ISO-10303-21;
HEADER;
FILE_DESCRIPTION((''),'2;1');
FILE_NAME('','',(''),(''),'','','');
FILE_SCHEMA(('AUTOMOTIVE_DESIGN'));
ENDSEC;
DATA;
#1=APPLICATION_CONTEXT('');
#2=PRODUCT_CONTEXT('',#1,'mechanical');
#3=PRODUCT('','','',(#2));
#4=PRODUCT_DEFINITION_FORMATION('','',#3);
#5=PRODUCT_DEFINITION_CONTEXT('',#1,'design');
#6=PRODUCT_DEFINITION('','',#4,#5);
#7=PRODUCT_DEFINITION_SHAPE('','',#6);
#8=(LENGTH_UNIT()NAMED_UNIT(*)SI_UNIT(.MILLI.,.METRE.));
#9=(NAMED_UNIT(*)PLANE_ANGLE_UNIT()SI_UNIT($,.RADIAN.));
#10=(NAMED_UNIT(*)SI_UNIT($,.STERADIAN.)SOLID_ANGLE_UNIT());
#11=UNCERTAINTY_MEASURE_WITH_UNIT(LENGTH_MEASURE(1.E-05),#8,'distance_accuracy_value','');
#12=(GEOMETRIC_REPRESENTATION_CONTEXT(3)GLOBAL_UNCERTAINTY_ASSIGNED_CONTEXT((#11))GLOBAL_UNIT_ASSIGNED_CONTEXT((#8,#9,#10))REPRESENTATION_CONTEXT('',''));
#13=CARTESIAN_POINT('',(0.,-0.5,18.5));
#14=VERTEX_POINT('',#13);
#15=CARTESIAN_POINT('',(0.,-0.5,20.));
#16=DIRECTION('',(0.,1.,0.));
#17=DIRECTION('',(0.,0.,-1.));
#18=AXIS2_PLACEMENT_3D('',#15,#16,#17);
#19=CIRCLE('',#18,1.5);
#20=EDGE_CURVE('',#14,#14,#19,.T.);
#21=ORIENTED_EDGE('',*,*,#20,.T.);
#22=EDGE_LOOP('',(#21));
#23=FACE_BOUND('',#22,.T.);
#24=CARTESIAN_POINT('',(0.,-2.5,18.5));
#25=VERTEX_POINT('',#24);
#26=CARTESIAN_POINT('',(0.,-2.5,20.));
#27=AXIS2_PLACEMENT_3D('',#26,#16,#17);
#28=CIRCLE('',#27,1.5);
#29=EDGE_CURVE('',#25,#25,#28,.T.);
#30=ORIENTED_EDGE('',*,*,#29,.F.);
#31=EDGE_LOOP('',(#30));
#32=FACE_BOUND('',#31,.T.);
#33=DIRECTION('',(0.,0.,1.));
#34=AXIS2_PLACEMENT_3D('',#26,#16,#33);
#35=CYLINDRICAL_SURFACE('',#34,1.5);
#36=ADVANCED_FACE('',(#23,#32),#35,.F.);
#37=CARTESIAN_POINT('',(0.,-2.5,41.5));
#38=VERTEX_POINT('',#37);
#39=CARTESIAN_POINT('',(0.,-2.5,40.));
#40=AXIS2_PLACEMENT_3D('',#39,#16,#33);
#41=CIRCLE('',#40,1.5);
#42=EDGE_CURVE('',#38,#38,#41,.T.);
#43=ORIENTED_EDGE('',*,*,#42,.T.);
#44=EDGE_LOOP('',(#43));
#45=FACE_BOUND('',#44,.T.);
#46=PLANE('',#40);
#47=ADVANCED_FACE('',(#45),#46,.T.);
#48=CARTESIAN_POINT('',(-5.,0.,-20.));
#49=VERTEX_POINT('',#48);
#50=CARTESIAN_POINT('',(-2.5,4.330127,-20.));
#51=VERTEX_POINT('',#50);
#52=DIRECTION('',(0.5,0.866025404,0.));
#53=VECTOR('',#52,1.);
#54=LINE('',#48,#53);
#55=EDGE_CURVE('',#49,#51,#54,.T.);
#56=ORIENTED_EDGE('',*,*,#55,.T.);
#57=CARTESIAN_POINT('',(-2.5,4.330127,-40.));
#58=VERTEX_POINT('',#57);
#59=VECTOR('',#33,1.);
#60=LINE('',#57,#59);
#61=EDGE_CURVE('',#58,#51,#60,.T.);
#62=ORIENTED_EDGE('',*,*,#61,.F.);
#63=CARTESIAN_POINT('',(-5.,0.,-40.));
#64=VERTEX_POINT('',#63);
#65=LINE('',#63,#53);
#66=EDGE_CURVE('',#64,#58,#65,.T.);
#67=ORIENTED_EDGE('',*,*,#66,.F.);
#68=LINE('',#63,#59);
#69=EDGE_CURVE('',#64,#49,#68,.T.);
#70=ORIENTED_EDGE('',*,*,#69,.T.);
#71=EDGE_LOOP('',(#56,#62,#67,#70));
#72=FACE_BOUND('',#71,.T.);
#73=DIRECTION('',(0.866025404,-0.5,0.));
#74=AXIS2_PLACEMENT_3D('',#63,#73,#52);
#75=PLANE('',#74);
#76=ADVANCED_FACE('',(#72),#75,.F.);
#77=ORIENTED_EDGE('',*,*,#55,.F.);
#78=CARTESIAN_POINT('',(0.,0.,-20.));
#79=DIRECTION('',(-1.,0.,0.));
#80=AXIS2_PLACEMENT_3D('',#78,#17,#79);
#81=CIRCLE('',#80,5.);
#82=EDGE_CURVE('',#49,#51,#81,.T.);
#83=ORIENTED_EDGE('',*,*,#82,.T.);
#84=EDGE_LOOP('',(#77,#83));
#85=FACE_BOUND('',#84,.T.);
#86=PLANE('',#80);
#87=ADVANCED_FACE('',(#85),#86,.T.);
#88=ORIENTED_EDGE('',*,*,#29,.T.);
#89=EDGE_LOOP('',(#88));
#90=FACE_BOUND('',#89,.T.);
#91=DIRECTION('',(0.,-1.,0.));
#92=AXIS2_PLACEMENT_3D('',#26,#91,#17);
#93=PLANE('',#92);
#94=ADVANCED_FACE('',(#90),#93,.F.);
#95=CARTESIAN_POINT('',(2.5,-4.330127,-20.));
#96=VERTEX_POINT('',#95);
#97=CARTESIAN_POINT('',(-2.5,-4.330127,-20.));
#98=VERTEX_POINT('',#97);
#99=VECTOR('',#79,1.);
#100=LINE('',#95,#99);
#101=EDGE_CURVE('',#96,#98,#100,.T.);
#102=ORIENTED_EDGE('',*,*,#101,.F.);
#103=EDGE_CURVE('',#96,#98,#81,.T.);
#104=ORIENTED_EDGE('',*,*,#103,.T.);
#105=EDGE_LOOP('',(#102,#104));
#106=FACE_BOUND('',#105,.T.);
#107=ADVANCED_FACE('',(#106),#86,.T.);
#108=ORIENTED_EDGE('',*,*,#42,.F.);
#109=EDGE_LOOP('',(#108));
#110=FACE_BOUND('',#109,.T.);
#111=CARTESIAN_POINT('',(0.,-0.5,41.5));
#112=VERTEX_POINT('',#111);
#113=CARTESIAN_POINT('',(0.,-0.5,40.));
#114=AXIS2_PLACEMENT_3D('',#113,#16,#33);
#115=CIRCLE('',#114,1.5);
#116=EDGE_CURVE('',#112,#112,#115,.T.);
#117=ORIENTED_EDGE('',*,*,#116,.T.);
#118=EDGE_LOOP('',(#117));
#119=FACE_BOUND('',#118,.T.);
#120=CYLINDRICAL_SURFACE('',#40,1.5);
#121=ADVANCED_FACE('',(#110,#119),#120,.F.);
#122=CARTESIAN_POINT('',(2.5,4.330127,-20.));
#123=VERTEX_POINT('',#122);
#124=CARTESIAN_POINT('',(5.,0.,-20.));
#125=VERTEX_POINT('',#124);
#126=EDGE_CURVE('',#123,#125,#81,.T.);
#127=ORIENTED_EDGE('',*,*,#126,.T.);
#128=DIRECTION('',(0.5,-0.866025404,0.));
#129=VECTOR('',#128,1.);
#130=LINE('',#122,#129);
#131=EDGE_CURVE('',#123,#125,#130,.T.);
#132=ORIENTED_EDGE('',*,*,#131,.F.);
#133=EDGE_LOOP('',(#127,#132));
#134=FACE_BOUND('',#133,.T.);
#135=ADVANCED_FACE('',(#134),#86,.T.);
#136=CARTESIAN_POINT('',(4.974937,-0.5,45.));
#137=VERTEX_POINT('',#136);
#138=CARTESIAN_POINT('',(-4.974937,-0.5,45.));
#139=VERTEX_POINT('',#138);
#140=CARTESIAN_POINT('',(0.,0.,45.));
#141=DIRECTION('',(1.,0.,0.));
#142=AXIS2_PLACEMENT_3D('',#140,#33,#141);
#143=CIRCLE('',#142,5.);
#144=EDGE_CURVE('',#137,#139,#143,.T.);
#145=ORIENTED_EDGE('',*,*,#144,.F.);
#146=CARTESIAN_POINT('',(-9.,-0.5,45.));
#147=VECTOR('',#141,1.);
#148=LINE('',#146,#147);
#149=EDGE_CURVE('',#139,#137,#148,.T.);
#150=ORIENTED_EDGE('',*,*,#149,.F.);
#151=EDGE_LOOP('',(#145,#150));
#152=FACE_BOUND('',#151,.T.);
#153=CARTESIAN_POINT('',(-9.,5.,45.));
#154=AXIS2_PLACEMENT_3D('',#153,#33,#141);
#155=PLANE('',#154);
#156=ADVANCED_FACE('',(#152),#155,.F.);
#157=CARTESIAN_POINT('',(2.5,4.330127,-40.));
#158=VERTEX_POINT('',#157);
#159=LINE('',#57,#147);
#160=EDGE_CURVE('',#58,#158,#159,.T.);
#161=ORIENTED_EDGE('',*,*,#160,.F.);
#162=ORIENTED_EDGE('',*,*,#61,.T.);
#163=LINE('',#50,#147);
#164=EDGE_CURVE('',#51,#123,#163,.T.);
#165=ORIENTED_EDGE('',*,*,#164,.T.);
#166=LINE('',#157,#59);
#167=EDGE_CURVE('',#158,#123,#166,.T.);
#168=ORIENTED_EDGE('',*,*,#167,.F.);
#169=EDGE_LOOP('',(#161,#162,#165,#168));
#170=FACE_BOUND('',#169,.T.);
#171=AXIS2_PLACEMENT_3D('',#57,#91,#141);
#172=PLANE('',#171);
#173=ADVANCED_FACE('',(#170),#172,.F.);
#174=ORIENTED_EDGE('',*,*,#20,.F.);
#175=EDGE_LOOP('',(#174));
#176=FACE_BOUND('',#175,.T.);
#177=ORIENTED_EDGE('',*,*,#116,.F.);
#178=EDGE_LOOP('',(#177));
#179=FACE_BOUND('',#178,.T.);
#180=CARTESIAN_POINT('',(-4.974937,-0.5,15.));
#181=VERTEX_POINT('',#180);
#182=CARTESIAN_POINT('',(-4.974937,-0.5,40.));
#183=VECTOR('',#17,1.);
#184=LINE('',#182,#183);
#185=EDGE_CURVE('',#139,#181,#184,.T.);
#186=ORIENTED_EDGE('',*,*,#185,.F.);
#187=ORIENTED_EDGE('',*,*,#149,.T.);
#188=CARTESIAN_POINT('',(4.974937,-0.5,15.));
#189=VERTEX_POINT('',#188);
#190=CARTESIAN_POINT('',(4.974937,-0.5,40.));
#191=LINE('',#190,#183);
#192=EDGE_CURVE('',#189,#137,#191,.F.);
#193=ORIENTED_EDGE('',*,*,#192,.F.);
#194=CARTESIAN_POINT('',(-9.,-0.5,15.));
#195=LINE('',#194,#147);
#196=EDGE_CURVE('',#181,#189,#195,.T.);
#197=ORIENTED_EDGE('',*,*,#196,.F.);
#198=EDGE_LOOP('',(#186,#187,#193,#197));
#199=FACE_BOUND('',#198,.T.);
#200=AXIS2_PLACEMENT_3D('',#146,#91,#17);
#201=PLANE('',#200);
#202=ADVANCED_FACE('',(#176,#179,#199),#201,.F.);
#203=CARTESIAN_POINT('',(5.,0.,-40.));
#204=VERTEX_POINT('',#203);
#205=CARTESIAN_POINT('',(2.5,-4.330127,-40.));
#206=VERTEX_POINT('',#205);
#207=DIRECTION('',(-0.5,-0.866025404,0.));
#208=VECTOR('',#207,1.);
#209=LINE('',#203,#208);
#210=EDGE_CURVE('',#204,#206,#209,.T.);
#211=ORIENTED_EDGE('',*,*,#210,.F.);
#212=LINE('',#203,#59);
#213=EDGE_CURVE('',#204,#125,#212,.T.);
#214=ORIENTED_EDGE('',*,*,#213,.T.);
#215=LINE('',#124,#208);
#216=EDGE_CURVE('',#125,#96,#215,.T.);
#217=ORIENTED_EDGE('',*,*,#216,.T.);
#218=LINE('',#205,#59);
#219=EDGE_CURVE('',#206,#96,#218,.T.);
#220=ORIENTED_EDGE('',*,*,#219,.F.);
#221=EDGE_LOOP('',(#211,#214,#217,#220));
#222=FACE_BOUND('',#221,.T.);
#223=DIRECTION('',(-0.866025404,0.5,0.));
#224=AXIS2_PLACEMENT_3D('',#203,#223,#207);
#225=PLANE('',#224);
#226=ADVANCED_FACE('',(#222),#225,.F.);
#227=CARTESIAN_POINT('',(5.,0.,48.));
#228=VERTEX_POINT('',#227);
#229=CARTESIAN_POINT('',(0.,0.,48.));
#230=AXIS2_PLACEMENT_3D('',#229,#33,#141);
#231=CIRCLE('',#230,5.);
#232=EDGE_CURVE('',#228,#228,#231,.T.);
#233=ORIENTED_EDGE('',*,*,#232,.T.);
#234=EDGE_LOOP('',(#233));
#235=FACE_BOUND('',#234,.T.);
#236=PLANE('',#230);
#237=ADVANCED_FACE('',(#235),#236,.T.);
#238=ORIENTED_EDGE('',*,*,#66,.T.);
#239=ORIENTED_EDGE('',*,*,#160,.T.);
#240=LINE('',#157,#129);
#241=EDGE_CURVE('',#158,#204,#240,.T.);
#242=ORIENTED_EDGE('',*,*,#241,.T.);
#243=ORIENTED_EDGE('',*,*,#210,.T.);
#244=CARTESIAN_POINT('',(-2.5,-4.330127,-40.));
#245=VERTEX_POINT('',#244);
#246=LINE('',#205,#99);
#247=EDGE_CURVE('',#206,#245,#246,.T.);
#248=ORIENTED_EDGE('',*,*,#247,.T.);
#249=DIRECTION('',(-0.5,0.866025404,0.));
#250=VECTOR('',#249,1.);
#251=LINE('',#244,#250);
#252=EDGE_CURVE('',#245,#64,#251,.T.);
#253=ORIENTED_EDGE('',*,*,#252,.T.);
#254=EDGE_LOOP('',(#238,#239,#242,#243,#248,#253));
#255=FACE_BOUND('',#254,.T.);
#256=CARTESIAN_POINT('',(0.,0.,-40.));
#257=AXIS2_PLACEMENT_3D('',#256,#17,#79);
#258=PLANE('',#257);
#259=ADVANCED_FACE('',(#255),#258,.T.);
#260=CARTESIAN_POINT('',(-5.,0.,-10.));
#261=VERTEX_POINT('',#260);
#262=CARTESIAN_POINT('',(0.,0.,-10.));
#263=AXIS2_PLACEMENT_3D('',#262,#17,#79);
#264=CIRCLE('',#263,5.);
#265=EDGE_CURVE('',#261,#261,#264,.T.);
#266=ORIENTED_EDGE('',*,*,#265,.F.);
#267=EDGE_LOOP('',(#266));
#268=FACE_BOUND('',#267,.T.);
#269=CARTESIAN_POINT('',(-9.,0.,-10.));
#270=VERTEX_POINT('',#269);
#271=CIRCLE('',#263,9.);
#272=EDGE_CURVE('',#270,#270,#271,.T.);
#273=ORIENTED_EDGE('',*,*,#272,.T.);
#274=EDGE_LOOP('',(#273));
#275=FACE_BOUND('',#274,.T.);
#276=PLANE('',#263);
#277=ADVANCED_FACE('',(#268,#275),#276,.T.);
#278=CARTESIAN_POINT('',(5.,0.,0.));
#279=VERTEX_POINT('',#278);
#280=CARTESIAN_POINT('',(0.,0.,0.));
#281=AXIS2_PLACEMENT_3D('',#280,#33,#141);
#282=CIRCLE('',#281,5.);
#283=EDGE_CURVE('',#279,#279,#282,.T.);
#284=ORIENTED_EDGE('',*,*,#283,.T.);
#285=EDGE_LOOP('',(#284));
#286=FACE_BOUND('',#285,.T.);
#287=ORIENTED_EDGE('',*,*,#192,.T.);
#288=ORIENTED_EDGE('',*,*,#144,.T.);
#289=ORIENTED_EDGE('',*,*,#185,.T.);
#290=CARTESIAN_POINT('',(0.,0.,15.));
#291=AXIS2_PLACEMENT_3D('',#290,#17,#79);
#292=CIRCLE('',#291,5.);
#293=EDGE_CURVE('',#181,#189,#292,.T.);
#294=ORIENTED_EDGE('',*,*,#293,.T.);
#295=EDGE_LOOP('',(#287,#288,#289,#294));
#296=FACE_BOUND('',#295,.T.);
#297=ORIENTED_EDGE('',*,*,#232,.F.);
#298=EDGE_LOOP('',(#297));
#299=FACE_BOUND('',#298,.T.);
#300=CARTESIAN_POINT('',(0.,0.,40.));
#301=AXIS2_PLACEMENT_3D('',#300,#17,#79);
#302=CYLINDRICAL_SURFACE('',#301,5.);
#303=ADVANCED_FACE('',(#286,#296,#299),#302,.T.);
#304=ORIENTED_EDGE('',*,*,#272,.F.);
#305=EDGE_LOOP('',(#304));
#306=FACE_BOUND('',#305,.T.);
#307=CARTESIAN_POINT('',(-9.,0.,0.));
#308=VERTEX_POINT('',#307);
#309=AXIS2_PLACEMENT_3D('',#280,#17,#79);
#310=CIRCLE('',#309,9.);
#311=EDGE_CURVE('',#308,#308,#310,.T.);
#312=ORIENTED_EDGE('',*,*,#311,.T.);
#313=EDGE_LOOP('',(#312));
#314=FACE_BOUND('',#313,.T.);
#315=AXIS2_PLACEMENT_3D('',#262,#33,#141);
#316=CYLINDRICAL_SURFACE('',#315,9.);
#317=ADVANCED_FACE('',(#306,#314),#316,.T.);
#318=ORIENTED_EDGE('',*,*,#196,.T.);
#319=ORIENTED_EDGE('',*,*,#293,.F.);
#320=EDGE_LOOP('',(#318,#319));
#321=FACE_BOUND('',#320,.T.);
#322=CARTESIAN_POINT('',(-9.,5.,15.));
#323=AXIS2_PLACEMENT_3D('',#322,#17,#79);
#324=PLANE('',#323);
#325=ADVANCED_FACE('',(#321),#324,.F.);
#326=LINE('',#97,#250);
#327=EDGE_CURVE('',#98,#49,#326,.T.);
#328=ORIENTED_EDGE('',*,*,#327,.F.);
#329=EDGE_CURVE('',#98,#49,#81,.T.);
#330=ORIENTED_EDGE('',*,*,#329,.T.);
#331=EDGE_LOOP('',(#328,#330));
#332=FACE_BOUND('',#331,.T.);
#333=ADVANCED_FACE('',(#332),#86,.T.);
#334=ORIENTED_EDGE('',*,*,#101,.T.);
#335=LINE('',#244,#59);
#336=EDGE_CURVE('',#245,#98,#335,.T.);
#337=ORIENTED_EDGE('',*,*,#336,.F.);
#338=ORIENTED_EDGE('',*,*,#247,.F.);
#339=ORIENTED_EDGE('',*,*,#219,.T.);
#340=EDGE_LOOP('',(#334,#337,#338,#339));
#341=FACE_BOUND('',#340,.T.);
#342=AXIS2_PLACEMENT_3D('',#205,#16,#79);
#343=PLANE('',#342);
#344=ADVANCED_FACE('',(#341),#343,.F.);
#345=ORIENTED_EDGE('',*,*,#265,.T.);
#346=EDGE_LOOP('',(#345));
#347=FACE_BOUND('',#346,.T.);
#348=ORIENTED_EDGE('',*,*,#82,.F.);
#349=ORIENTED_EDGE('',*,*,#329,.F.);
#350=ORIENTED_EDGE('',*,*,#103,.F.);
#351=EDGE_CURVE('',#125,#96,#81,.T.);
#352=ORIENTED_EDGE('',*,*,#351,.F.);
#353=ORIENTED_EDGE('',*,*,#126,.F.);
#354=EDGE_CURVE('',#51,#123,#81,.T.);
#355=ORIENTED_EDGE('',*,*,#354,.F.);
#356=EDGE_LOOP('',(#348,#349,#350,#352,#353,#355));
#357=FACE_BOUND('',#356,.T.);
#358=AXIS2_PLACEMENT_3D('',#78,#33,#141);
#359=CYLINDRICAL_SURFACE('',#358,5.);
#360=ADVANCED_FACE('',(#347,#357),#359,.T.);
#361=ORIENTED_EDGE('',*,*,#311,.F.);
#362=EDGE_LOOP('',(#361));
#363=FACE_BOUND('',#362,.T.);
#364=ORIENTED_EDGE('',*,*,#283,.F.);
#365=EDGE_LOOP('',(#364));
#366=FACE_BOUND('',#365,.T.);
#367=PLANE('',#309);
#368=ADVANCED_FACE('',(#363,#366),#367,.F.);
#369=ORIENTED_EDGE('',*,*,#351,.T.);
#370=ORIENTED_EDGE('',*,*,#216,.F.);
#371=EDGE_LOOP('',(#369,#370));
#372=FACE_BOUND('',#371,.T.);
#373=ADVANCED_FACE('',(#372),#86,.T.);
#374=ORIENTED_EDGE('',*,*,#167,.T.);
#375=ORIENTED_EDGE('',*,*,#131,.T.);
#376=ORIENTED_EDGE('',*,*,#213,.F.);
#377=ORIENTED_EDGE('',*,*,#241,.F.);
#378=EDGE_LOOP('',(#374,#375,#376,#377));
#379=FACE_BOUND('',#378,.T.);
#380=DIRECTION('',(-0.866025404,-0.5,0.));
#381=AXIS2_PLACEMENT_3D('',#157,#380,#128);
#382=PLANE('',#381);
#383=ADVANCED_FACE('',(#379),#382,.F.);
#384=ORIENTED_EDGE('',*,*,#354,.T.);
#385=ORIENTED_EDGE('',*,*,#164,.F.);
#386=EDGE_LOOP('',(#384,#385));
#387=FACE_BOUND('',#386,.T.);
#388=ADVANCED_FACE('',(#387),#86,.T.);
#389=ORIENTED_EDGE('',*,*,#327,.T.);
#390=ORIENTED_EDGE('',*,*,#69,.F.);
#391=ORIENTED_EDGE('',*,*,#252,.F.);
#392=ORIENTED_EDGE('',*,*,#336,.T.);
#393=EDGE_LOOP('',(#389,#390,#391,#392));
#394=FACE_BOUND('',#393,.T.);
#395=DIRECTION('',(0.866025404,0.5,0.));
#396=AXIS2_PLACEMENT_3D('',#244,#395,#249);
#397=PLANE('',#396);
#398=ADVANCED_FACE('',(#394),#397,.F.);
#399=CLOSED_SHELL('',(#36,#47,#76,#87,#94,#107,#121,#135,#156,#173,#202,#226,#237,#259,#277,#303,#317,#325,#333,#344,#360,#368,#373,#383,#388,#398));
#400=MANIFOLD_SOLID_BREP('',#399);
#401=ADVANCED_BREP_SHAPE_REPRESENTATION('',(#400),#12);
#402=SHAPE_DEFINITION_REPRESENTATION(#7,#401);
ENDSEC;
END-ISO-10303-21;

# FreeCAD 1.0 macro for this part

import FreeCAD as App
import Part
import Sketcher

V = App.Vector
Q = App.Units.Quantity

doc = App.newDocument("Part")
params = doc.addObject("Spreadsheet::Sheet", "Params")
for row, (alias, value) in enumerate([
    ("sketch1_diameter", "10 mm"),
    ("pad1_length", "40 mm"),
    ("sketch2_diameter", "18 mm"),
    ("pad2_length", "10 mm"),
    ("sketch3_diameter", "10 mm"),
    ("pad3_length", "10 mm"),
    ("sketch4_width", "5 mm"),
    ("sketch4_length", "5 mm"),
    ("pad4_length", "20 mm"),
    ("sketch5_diameter", "10 mm"),
    ("pad5_length", "8 mm"),
    ("sketch6_height", "30 mm"),
    ("sketch6_width", "5.5 mm"),
    ("sketch7_diameter", "3 mm"),
    ("pocket2_length", "2 mm"),
], start=1):
    params.set(f"A{row}", alias)
    params.set(f"B{row}", "=" + value)
    params.setAlias(f"B{row}", alias)

body = doc.addObject("PartDesign::Body", "Body")

sketch1 = body.newObject("Sketcher::SketchObject", "Sketch")
sketch1.AttachmentSupport = (doc.getObject("XY_Plane"), [""])
sketch1.MapMode = "FlatFace"
sketch1.addGeometry(Part.Circle(V(0, 0, 0), V(0, 0, 1), 5), False)
sketch1.addConstraint([
    Sketcher.Constraint("Coincident", 0, 3, -1, 1),
    Sketcher.Constraint("Diameter", 0, Q("10 mm")),
])
sketch1.setExpression("Constraints[1]", "Params.sketch1_diameter")
pad1 = body.newObject("PartDesign::Pad", "Pad")
pad1.Profile = sketch1
pad1.setExpression("Length", "Params.pad1_length")

sketch2 = body.newObject("Sketcher::SketchObject", "Sketch001")
sketch2.AttachmentSupport = (doc.getObject("XY_Plane"), [""])
sketch2.MapMode = "FlatFace"
sketch2.addGeometry(Part.Circle(V(0, 0, 0), V(0, 0, 1), 9), False)
sketch2.addConstraint([
    Sketcher.Constraint("Coincident", 0, 3, -1, 1),
    Sketcher.Constraint("Diameter", 0, Q("18 mm")),
])
sketch2.setExpression("Constraints[1]", "Params.sketch2_diameter")
pad2 = body.newObject("PartDesign::Pad", "Pad001")
pad2.Profile = sketch2
pad2.setExpression("Length", "Params.pad2_length")
pad2.Reversed = True

sketch3 = body.newObject("Sketcher::SketchObject", "Sketch002")
sketch3.AttachmentSupport = (doc.getObject("XY_Plane"), [""])
sketch3.MapMode = "FlatFace"
sketch3.AttachmentOffset = App.Placement(V(0, 0, -10), App.Rotation())
sketch3.addGeometry(Part.Circle(V(0, 0, 0), V(0, 0, 1), 5), False)
sketch3.addConstraint([
    Sketcher.Constraint("Coincident", 0, 3, -1, 1),
    Sketcher.Constraint("Diameter", 0, Q("10 mm")),
])
sketch3.setExpression("Constraints[1]", "Params.sketch3_diameter")
pad3 = body.newObject("PartDesign::Pad", "Pad002")
pad3.Profile = sketch3
pad3.setExpression("Length", "Params.pad3_length")
pad3.Reversed = True

sketch4 = body.newObject("Sketcher::SketchObject", "Sketch003")
sketch4.AttachmentSupport = (doc.getObject("XY_Plane"), [""])
sketch4.MapMode = "FlatFace"
sketch4.AttachmentOffset = App.Placement(V(0, 0, -20), App.Rotation())
sketch4.addGeometry([
    Part.LineSegment(V(5, 0, 0), V(2.5, -4.330127, 0)),
    Part.LineSegment(V(2.5, -4.330127, 0), V(-2.5, -4.330127, 0)),
    Part.LineSegment(V(-2.5, -4.330127, 0), V(-5, 0, 0)),
    Part.LineSegment(V(-5, 0, 0), V(-2.5, 4.330127, 0)),
    Part.LineSegment(V(-2.5, 4.330127, 0), V(2.5, 4.330127, 0)),
    Part.LineSegment(V(2.5, 4.330127, 0), V(5, 0, 0)),
], False)
sketch4.addConstraint([
    Sketcher.Constraint("Coincident", 0, 2, 1, 1),
    Sketcher.Constraint("Coincident", 1, 2, 2, 1),
    Sketcher.Constraint("Coincident", 2, 2, 3, 1),
    Sketcher.Constraint("Coincident", 3, 2, 4, 1),
    Sketcher.Constraint("Coincident", 4, 2, 5, 1),
    Sketcher.Constraint("Coincident", 5, 2, 0, 1),
    Sketcher.Constraint("Horizontal", 1),
    Sketcher.Constraint("Horizontal", 4),
    Sketcher.Constraint("Symmetric", 0, 2, 3, 2, -1, 1),
    Sketcher.Constraint("Symmetric", 2, 2, 5, 2, -1, 1),
    Sketcher.Constraint("PointOnObject", 2, 2, -1),
    Sketcher.Constraint("Parallel", 2, 5),
    Sketcher.Constraint("Vertical", 1, 2, 3, 2),
    Sketcher.Constraint("DistanceX", 1, 2, 1, 1, Q("5 mm")),
    Sketcher.Constraint("Angle", 0, Q("-120 deg")),
    Sketcher.Constraint("Distance", 0, Q("5 mm")),
])
sketch4.setExpression("Constraints[13]", "Params.sketch4_width")
sketch4.setExpression("Constraints[15]", "Params.sketch4_length")
pad4 = body.newObject("PartDesign::Pad", "Pad003")
pad4.Profile = sketch4
pad4.setExpression("Length", "Params.pad4_length")
pad4.Reversed = True

sketch5 = body.newObject("Sketcher::SketchObject", "Sketch004")
sketch5.AttachmentSupport = (doc.getObject("XY_Plane"), [""])
sketch5.MapMode = "FlatFace"
sketch5.AttachmentOffset = App.Placement(V(0, 0, 40), App.Rotation())
sketch5.addGeometry(Part.Circle(V(0, 0, 0), V(0, 0, 1), 5), False)
sketch5.addConstraint([
    Sketcher.Constraint("Coincident", 0, 3, -1, 1),
    Sketcher.Constraint("Diameter", 0, Q("10 mm")),
])
sketch5.setExpression("Constraints[1]", "Params.sketch5_diameter")
pad5 = body.newObject("PartDesign::Pad", "Pad004")
pad5.Profile = sketch5
pad5.setExpression("Length", "Params.pad5_length")

sketch6 = body.newObject("Sketcher::SketchObject", "Sketch005")
sketch6.AttachmentSupport = (doc.getObject("YZ_Plane"), [""])
sketch6.MapMode = "FlatFace"
sketch6.addGeometry([
    Part.LineSegment(V(5, 45, 0), V(-0.5, 45, 0)),
    Part.LineSegment(V(-0.5, 45, 0), V(-0.5, 15, 0)),
    Part.LineSegment(V(-0.5, 15, 0), V(5, 15, 0)),
    Part.LineSegment(V(5, 15, 0), V(5, 45, 0)),
], False)
sketch6.addConstraint([
    Sketcher.Constraint("Coincident", 0, 2, 1, 1),
    Sketcher.Constraint("Coincident", 1, 2, 2, 1),
    Sketcher.Constraint("Coincident", 2, 2, 3, 1),
    Sketcher.Constraint("Coincident", 3, 2, 0, 1),
    Sketcher.Constraint("Horizontal", 0),
    Sketcher.Constraint("Vertical", 1),
    Sketcher.Constraint("Horizontal", 2),
    Sketcher.Constraint("Vertical", 3),
    Sketcher.Constraint("DistanceY", 1, 2, 1, 1, Q("30 mm")),
    Sketcher.Constraint("DistanceX", 0, 2, 0, 1, Q("5.5 mm")),
    Sketcher.Constraint("DistanceY", -1, 1, 0, 2, Q("45 mm")),
    Sketcher.Constraint("DistanceX", -1, 1, 2, 2, Q("5 mm")),
])
sketch6.setExpression("Constraints[8]", "Params.sketch6_height")
sketch6.setExpression("Constraints[9]", "Params.sketch6_width")
pocket1 = body.newObject("PartDesign::Pocket", "Pocket")
pocket1.Profile = sketch6
pocket1.Type = "ThroughAll"
pocket1.Midplane = True

sketch7 = body.newObject("Sketcher::SketchObject", "Sketch006")
sketch7.AttachmentSupport = (doc.getObject("XZ_Plane"), [""])
sketch7.MapMode = "FlatFace"
sketch7.AttachmentOffset = App.Placement(V(0, 0, 0.5), App.Rotation())
sketch7.addGeometry([
    Part.Circle(V(0, 40, 0), V(0, 0, 1), 1.5),
    Part.Circle(V(0, 20, 0), V(0, 0, 1), 1.5),
], False)
sketch7.addConstraint([
    Sketcher.Constraint("Equal", 0, 1),
    Sketcher.Constraint("PointOnObject", 0, 3, -2),
    Sketcher.Constraint("PointOnObject", 1, 3, -2),
    Sketcher.Constraint("Diameter", 0, Q("3 mm")),
    Sketcher.Constraint("DistanceY", -1, 1, 0, 3, Q("40 mm")),
    Sketcher.Constraint("DistanceY", -1, 1, 1, 3, Q("20 mm")),
])
sketch7.setExpression("Constraints[3]", "Params.sketch7_diameter")
pocket2 = body.newObject("PartDesign::Pocket", "Pocket001")
pocket2.Profile = sketch7
pocket2.setExpression("Length", "Params.pocket2_length")
pocket2.Reversed = True

doc.recompute()
